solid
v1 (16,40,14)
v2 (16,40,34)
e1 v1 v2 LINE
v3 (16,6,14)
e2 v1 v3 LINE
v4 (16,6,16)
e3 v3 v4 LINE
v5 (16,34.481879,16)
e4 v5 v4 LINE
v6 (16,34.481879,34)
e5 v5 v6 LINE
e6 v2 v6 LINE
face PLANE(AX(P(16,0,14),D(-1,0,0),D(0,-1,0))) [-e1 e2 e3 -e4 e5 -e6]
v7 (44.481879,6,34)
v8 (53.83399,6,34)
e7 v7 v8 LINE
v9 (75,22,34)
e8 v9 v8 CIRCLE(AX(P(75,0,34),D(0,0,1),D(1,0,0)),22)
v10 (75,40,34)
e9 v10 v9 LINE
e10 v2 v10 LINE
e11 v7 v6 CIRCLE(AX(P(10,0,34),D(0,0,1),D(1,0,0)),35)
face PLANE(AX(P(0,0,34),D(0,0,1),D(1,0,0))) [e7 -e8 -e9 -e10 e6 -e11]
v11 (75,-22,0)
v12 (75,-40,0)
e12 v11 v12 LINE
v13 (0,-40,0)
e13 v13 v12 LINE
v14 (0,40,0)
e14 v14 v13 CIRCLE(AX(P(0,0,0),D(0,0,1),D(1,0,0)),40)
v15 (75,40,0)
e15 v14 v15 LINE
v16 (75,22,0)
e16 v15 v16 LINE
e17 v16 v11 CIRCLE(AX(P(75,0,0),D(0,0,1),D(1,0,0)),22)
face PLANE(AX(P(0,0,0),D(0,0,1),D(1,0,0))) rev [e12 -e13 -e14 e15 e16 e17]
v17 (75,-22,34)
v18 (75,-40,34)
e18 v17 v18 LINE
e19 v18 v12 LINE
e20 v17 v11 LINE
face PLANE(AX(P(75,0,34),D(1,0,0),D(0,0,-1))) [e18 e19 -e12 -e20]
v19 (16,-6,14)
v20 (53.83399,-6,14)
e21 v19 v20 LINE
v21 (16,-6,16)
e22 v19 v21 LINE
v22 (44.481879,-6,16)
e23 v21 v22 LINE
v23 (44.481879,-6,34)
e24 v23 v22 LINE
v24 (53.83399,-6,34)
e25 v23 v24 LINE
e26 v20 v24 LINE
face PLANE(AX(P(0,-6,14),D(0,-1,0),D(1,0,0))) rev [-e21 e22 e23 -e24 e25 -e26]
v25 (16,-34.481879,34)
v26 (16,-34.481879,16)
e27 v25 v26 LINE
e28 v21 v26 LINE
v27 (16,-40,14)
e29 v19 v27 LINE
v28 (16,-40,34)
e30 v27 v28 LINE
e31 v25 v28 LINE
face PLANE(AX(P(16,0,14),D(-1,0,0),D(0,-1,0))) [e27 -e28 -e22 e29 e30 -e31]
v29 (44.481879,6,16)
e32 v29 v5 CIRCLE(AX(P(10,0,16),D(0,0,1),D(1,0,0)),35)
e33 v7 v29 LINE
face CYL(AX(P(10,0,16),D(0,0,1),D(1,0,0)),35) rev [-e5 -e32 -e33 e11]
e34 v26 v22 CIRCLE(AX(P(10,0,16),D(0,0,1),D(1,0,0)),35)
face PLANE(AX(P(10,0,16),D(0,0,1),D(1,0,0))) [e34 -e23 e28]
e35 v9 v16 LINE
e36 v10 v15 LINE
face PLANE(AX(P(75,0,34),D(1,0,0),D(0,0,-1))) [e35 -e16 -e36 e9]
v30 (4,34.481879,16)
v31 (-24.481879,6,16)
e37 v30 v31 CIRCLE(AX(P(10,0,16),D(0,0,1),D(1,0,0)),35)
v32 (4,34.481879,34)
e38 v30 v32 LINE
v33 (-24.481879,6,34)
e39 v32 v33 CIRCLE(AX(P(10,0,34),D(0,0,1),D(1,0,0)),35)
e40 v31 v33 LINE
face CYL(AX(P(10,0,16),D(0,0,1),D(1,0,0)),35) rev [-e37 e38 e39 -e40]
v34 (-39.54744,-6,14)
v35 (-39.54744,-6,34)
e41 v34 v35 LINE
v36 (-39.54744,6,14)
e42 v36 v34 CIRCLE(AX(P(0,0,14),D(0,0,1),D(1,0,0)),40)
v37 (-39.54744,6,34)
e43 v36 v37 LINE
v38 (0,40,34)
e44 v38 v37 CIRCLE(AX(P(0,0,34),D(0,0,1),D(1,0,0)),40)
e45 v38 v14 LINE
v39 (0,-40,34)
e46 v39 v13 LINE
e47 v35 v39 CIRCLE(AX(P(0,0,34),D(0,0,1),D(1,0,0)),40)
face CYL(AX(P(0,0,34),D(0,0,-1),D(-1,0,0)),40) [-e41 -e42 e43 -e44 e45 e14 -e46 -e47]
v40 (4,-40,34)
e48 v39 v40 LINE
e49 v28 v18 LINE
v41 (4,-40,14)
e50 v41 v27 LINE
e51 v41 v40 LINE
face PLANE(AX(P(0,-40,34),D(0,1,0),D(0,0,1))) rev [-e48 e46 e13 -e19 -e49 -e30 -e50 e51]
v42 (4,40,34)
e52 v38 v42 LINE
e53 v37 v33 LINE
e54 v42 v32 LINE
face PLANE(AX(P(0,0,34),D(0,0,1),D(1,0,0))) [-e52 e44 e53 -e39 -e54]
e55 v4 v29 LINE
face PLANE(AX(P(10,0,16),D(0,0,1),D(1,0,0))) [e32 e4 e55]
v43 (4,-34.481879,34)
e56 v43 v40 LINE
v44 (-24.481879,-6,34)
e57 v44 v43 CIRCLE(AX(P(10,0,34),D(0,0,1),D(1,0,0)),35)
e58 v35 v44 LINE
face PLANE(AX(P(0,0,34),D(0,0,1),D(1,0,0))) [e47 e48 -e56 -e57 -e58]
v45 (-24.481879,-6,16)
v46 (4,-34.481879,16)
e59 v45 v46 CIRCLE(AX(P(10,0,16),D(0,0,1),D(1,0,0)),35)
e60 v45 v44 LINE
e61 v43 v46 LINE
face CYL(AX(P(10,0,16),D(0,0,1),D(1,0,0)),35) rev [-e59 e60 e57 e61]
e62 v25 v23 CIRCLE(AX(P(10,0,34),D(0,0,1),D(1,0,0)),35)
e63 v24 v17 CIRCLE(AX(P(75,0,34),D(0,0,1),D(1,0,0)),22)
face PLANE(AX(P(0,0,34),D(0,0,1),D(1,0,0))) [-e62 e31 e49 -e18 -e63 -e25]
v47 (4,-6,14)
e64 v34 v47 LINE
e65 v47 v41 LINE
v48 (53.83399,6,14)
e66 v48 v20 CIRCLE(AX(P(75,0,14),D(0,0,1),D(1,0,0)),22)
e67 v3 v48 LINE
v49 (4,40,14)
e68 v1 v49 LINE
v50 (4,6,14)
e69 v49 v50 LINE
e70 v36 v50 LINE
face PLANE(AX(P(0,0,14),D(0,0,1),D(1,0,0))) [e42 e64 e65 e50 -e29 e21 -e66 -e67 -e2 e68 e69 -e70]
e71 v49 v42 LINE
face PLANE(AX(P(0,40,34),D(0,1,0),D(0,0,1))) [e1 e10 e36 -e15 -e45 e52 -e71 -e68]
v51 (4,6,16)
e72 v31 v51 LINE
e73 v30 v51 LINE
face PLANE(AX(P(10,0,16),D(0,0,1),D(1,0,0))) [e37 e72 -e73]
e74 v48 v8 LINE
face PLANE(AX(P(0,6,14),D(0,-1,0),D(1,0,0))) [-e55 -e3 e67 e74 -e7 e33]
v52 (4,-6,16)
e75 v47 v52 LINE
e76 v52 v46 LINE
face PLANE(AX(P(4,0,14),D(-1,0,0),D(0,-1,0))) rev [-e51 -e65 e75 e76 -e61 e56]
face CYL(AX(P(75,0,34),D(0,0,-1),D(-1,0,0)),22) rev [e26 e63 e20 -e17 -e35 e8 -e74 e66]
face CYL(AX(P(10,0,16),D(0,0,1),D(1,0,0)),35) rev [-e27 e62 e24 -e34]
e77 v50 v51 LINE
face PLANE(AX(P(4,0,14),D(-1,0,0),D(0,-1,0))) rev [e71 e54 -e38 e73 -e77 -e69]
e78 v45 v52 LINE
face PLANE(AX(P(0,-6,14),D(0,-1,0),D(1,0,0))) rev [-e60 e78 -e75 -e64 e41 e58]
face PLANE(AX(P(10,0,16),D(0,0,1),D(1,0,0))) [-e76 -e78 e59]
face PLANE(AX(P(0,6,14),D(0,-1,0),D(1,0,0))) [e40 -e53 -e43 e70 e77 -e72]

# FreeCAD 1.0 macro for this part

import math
import FreeCAD as App
import Part
import Sketcher
Q = App.Units.Quantity

doc = App.newDocument("Part")
body = doc.addObject("PartDesign::Body", "Body")

# Sketch on XY plane
sketch1 = body.newObject("Sketcher::SketchObject", "Sketch")
sketch1.AttachmentSupport = (doc.getObject("XY_Plane"), [""])
sketch1.MapMode = "FlatFace"
sketch1.addGeometry(Part.LineSegment(App.Vector(75, 40, 0), App.Vector(0, 40, 0)), False)
sketch1.addGeometry(Part.ArcOfCircle(Part.Circle(App.Vector(0, 0, 0), App.Vector(0, 0, 1), 40), math.radians(90), math.radians(270)), False)
sketch1.addGeometry(Part.LineSegment(App.Vector(0, -40, 0), App.Vector(75, -40, 0)), False)
sketch1.addGeometry(Part.LineSegment(App.Vector(75, -40, 0), App.Vector(75, -22, 0)), False)
sketch1.addGeometry(Part.ArcOfCircle(Part.Circle(App.Vector(75, 0, 0), App.Vector(0, 0, 1), 22), math.radians(90), math.radians(270)), False)
sketch1.addGeometry(Part.LineSegment(App.Vector(75, 22, 0), App.Vector(75, 40, 0)), False)
sketch1.addConstraint(Sketcher.Constraint("Tangent", 0, 2, 1, 1))
sketch1.addConstraint(Sketcher.Constraint("Tangent", 1, 2, 2, 1))
sketch1.addConstraint(Sketcher.Constraint("Coincident", 2, 2, 3, 1))
sketch1.addConstraint(Sketcher.Constraint("Coincident", 3, 2, 4, 2))
sketch1.addConstraint(Sketcher.Constraint("Coincident", 4, 1, 5, 1))
sketch1.addConstraint(Sketcher.Constraint("Coincident", 5, 2, 0, 1))
sketch1.addConstraint(Sketcher.Constraint("Horizontal", 0))
sketch1.addConstraint(Sketcher.Constraint("Horizontal", 2))
sketch1.addConstraint(Sketcher.Constraint("Vertical", 3))
sketch1.addConstraint(Sketcher.Constraint("Vertical", 5))
sketch1.addConstraint(Sketcher.Constraint("Coincident", 1, 3, -1, 1))
sketch1.addConstraint(Sketcher.Constraint("Symmetric", 3, 2, 4, 1, -1))
sketch1.addConstraint(Sketcher.Constraint("Vertical", 4, 3, 2, 2))
sketch1.addConstraint(Sketcher.Constraint("Radius", 1, Q("40 mm")))
sketch1.addConstraint(Sketcher.Constraint("Radius", 4, Q("22 mm")))
sketch1.addConstraint(Sketcher.Constraint("DistanceX", 0, 2, 0, 1, Q("75 mm")))
pad1 = body.newObject("PartDesign::Pad", "Pad")
pad1.Profile = sketch1
pad1.Length = 34

# Sketch on XY plane
sketch2 = body.newObject("Sketcher::SketchObject", "Sketch001")
sketch2.AttachmentSupport = (doc.getObject("XY_Plane"), [""])
sketch2.MapMode = "FlatFace"
sketch2.AttachmentOffset = App.Placement(App.Vector(0, 0, 34), App.Rotation())
sketch2.addGeometry(Part.Circle(App.Vector(10, 0, 0), App.Vector(0, 0, 1), 35), False)
sketch2.addConstraint(Sketcher.Constraint("PointOnObject", 0, 3, -1))
sketch2.addConstraint(Sketcher.Constraint("Diameter", 0, Q("70 mm")))
sketch2.addConstraint(Sketcher.Constraint("DistanceX", -1, 1, 0, 3, Q("10 mm")))
pocket1 = body.newObject("PartDesign::Pocket", "Pocket")
pocket1.Profile = sketch2
pocket1.Length = 18

# Sketch on XY plane
sketch3 = body.newObject("Sketcher::SketchObject", "Sketch002")
sketch3.AttachmentSupport = (doc.getObject("XY_Plane"), [""])
sketch3.MapMode = "FlatFace"
sketch3.AttachmentOffset = App.Placement(App.Vector(0, 0, 34), App.Rotation())
sketch3.addGeometry(Part.ArcOfCircle(Part.Circle(App.Vector(75, 0, 0), App.Vector(0, 0, 1), 22), math.radians(164), math.radians(196)), False)
sketch3.addGeometry(Part.LineSegment(App.Vector(54, 6, 0), App.Vector(16, 6, 0)), False)
sketch3.addGeometry(Part.LineSegment(App.Vector(16, 6, 0), App.Vector(16, 40, 0)), False)
sketch3.addGeometry(Part.LineSegment(App.Vector(16, 40, 0), App.Vector(4, 40, 0)), False)
sketch3.addGeometry(Part.LineSegment(App.Vector(4, 40, 0), App.Vector(4, 6, 0)), False)
sketch3.addGeometry(Part.LineSegment(App.Vector(4, 6, 0), App.Vector(-40, 6, 0)), False)
sketch3.addGeometry(Part.ArcOfCircle(Part.Circle(App.Vector(0, 0, 0), App.Vector(0, 0, 1), 40), math.radians(171.37), math.radians(188.63)), False)
sketch3.addGeometry(Part.LineSegment(App.Vector(-40, -6, 0), App.Vector(4, -6, 0)), False)
sketch3.addGeometry(Part.LineSegment(App.Vector(4, -6, 0), App.Vector(4, -40, 0)), False)
sketch3.addGeometry(Part.LineSegment(App.Vector(4, -40, 0), App.Vector(16, -40, 0)), False)
sketch3.addGeometry(Part.LineSegment(App.Vector(16, -40, 0), App.Vector(16, -6, 0)), False)
sketch3.addGeometry(Part.LineSegment(App.Vector(16, -6, 0), App.Vector(54, -6, 0)), False)
sketch3.addConstraint(Sketcher.Constraint("Coincident", 0, 1, 1, 1))
sketch3.addConstraint(Sketcher.Constraint("Coincident", 1, 2, 2, 1))
sketch3.addConstraint(Sketcher.Constraint("Coincident", 2, 2, 3, 1))
sketch3.addConstraint(Sketcher.Constraint("Coincident", 3, 2, 4, 1))
sketch3.addConstraint(Sketcher.Constraint("Coincident", 4, 2, 5, 1))
sketch3.addConstraint(Sketcher.Constraint("Coincident", 5, 2, 6, 1))
sketch3.addConstraint(Sketcher.Constraint("Coincident", 6, 2, 7, 1))
sketch3.addConstraint(Sketcher.Constraint("Coincident", 7, 2, 8, 1))
sketch3.addConstraint(Sketcher.Constraint("Coincident", 8, 2, 9, 1))
sketch3.addConstraint(Sketcher.Constraint("Coincident", 9, 2, 10, 1))
sketch3.addConstraint(Sketcher.Constraint("Coincident", 10, 2, 11, 1))
sketch3.addConstraint(Sketcher.Constraint("Coincident", 11, 2, 0, 2))
sketch3.addConstraint(Sketcher.Constraint("Horizontal", 1))
sketch3.addConstraint(Sketcher.Constraint("Vertical", 2))
sketch3.addConstraint(Sketcher.Constraint("Horizontal", 3))
sketch3.addConstraint(Sketcher.Constraint("Vertical", 4))
sketch3.addConstraint(Sketcher.Constraint("Horizontal", 5))
sketch3.addConstraint(Sketcher.Constraint("Horizontal", 7))
sketch3.addConstraint(Sketcher.Constraint("Vertical", 8))
sketch3.addConstraint(Sketcher.Constraint("Horizontal", 9))
sketch3.addConstraint(Sketcher.Constraint("Vertical", 10))
sketch3.addConstraint(Sketcher.Constraint("Horizontal", 11))
sketch3.addConstraint(Sketcher.Constraint("Coincident", 6, 3, -1, 1))
sketch3.addConstraint(Sketcher.Constraint("Symmetric", 4, 2, 7, 2, -1))
sketch3.addConstraint(Sketcher.Constraint("Symmetric", 2, 2, 9, 2, -1))
sketch3.addConstraint(Sketcher.Constraint("Symmetric", 0, 1, 11, 2, -1))
sketch3.addConstraint(Sketcher.Constraint("Horizontal", 1, 2, 4, 2))
sketch3.addConstraint(Sketcher.Constraint("Radius", 0, Q("22 mm")))
sketch3.addConstraint(Sketcher.Constraint("Radius", 6, Q("40 mm")))
sketch3.addConstraint(Sketcher.Constraint("DistanceX", 3, 2, 3, 1, Q("12 mm")))
sketch3.addConstraint(Sketcher.Constraint("DistanceY", 2, 1, 2, 2, Q("34 mm")))
sketch3.addConstraint(Sketcher.Constraint("DistanceX", -1, 1, 0, 3, Q("75 mm")))
sketch3.addConstraint(Sketcher.Constraint("DistanceY", -1, 1, 0, 1, Q("6 mm")))
sketch3.addConstraint(Sketcher.Constraint("DistanceX", -1, 1, 1, 2, Q("16 mm")))
pocket2 = body.newObject("PartDesign::Pocket", "Pocket001")
pocket2.Profile = sketch3
pocket2.Length = 20

doc.recompute()
